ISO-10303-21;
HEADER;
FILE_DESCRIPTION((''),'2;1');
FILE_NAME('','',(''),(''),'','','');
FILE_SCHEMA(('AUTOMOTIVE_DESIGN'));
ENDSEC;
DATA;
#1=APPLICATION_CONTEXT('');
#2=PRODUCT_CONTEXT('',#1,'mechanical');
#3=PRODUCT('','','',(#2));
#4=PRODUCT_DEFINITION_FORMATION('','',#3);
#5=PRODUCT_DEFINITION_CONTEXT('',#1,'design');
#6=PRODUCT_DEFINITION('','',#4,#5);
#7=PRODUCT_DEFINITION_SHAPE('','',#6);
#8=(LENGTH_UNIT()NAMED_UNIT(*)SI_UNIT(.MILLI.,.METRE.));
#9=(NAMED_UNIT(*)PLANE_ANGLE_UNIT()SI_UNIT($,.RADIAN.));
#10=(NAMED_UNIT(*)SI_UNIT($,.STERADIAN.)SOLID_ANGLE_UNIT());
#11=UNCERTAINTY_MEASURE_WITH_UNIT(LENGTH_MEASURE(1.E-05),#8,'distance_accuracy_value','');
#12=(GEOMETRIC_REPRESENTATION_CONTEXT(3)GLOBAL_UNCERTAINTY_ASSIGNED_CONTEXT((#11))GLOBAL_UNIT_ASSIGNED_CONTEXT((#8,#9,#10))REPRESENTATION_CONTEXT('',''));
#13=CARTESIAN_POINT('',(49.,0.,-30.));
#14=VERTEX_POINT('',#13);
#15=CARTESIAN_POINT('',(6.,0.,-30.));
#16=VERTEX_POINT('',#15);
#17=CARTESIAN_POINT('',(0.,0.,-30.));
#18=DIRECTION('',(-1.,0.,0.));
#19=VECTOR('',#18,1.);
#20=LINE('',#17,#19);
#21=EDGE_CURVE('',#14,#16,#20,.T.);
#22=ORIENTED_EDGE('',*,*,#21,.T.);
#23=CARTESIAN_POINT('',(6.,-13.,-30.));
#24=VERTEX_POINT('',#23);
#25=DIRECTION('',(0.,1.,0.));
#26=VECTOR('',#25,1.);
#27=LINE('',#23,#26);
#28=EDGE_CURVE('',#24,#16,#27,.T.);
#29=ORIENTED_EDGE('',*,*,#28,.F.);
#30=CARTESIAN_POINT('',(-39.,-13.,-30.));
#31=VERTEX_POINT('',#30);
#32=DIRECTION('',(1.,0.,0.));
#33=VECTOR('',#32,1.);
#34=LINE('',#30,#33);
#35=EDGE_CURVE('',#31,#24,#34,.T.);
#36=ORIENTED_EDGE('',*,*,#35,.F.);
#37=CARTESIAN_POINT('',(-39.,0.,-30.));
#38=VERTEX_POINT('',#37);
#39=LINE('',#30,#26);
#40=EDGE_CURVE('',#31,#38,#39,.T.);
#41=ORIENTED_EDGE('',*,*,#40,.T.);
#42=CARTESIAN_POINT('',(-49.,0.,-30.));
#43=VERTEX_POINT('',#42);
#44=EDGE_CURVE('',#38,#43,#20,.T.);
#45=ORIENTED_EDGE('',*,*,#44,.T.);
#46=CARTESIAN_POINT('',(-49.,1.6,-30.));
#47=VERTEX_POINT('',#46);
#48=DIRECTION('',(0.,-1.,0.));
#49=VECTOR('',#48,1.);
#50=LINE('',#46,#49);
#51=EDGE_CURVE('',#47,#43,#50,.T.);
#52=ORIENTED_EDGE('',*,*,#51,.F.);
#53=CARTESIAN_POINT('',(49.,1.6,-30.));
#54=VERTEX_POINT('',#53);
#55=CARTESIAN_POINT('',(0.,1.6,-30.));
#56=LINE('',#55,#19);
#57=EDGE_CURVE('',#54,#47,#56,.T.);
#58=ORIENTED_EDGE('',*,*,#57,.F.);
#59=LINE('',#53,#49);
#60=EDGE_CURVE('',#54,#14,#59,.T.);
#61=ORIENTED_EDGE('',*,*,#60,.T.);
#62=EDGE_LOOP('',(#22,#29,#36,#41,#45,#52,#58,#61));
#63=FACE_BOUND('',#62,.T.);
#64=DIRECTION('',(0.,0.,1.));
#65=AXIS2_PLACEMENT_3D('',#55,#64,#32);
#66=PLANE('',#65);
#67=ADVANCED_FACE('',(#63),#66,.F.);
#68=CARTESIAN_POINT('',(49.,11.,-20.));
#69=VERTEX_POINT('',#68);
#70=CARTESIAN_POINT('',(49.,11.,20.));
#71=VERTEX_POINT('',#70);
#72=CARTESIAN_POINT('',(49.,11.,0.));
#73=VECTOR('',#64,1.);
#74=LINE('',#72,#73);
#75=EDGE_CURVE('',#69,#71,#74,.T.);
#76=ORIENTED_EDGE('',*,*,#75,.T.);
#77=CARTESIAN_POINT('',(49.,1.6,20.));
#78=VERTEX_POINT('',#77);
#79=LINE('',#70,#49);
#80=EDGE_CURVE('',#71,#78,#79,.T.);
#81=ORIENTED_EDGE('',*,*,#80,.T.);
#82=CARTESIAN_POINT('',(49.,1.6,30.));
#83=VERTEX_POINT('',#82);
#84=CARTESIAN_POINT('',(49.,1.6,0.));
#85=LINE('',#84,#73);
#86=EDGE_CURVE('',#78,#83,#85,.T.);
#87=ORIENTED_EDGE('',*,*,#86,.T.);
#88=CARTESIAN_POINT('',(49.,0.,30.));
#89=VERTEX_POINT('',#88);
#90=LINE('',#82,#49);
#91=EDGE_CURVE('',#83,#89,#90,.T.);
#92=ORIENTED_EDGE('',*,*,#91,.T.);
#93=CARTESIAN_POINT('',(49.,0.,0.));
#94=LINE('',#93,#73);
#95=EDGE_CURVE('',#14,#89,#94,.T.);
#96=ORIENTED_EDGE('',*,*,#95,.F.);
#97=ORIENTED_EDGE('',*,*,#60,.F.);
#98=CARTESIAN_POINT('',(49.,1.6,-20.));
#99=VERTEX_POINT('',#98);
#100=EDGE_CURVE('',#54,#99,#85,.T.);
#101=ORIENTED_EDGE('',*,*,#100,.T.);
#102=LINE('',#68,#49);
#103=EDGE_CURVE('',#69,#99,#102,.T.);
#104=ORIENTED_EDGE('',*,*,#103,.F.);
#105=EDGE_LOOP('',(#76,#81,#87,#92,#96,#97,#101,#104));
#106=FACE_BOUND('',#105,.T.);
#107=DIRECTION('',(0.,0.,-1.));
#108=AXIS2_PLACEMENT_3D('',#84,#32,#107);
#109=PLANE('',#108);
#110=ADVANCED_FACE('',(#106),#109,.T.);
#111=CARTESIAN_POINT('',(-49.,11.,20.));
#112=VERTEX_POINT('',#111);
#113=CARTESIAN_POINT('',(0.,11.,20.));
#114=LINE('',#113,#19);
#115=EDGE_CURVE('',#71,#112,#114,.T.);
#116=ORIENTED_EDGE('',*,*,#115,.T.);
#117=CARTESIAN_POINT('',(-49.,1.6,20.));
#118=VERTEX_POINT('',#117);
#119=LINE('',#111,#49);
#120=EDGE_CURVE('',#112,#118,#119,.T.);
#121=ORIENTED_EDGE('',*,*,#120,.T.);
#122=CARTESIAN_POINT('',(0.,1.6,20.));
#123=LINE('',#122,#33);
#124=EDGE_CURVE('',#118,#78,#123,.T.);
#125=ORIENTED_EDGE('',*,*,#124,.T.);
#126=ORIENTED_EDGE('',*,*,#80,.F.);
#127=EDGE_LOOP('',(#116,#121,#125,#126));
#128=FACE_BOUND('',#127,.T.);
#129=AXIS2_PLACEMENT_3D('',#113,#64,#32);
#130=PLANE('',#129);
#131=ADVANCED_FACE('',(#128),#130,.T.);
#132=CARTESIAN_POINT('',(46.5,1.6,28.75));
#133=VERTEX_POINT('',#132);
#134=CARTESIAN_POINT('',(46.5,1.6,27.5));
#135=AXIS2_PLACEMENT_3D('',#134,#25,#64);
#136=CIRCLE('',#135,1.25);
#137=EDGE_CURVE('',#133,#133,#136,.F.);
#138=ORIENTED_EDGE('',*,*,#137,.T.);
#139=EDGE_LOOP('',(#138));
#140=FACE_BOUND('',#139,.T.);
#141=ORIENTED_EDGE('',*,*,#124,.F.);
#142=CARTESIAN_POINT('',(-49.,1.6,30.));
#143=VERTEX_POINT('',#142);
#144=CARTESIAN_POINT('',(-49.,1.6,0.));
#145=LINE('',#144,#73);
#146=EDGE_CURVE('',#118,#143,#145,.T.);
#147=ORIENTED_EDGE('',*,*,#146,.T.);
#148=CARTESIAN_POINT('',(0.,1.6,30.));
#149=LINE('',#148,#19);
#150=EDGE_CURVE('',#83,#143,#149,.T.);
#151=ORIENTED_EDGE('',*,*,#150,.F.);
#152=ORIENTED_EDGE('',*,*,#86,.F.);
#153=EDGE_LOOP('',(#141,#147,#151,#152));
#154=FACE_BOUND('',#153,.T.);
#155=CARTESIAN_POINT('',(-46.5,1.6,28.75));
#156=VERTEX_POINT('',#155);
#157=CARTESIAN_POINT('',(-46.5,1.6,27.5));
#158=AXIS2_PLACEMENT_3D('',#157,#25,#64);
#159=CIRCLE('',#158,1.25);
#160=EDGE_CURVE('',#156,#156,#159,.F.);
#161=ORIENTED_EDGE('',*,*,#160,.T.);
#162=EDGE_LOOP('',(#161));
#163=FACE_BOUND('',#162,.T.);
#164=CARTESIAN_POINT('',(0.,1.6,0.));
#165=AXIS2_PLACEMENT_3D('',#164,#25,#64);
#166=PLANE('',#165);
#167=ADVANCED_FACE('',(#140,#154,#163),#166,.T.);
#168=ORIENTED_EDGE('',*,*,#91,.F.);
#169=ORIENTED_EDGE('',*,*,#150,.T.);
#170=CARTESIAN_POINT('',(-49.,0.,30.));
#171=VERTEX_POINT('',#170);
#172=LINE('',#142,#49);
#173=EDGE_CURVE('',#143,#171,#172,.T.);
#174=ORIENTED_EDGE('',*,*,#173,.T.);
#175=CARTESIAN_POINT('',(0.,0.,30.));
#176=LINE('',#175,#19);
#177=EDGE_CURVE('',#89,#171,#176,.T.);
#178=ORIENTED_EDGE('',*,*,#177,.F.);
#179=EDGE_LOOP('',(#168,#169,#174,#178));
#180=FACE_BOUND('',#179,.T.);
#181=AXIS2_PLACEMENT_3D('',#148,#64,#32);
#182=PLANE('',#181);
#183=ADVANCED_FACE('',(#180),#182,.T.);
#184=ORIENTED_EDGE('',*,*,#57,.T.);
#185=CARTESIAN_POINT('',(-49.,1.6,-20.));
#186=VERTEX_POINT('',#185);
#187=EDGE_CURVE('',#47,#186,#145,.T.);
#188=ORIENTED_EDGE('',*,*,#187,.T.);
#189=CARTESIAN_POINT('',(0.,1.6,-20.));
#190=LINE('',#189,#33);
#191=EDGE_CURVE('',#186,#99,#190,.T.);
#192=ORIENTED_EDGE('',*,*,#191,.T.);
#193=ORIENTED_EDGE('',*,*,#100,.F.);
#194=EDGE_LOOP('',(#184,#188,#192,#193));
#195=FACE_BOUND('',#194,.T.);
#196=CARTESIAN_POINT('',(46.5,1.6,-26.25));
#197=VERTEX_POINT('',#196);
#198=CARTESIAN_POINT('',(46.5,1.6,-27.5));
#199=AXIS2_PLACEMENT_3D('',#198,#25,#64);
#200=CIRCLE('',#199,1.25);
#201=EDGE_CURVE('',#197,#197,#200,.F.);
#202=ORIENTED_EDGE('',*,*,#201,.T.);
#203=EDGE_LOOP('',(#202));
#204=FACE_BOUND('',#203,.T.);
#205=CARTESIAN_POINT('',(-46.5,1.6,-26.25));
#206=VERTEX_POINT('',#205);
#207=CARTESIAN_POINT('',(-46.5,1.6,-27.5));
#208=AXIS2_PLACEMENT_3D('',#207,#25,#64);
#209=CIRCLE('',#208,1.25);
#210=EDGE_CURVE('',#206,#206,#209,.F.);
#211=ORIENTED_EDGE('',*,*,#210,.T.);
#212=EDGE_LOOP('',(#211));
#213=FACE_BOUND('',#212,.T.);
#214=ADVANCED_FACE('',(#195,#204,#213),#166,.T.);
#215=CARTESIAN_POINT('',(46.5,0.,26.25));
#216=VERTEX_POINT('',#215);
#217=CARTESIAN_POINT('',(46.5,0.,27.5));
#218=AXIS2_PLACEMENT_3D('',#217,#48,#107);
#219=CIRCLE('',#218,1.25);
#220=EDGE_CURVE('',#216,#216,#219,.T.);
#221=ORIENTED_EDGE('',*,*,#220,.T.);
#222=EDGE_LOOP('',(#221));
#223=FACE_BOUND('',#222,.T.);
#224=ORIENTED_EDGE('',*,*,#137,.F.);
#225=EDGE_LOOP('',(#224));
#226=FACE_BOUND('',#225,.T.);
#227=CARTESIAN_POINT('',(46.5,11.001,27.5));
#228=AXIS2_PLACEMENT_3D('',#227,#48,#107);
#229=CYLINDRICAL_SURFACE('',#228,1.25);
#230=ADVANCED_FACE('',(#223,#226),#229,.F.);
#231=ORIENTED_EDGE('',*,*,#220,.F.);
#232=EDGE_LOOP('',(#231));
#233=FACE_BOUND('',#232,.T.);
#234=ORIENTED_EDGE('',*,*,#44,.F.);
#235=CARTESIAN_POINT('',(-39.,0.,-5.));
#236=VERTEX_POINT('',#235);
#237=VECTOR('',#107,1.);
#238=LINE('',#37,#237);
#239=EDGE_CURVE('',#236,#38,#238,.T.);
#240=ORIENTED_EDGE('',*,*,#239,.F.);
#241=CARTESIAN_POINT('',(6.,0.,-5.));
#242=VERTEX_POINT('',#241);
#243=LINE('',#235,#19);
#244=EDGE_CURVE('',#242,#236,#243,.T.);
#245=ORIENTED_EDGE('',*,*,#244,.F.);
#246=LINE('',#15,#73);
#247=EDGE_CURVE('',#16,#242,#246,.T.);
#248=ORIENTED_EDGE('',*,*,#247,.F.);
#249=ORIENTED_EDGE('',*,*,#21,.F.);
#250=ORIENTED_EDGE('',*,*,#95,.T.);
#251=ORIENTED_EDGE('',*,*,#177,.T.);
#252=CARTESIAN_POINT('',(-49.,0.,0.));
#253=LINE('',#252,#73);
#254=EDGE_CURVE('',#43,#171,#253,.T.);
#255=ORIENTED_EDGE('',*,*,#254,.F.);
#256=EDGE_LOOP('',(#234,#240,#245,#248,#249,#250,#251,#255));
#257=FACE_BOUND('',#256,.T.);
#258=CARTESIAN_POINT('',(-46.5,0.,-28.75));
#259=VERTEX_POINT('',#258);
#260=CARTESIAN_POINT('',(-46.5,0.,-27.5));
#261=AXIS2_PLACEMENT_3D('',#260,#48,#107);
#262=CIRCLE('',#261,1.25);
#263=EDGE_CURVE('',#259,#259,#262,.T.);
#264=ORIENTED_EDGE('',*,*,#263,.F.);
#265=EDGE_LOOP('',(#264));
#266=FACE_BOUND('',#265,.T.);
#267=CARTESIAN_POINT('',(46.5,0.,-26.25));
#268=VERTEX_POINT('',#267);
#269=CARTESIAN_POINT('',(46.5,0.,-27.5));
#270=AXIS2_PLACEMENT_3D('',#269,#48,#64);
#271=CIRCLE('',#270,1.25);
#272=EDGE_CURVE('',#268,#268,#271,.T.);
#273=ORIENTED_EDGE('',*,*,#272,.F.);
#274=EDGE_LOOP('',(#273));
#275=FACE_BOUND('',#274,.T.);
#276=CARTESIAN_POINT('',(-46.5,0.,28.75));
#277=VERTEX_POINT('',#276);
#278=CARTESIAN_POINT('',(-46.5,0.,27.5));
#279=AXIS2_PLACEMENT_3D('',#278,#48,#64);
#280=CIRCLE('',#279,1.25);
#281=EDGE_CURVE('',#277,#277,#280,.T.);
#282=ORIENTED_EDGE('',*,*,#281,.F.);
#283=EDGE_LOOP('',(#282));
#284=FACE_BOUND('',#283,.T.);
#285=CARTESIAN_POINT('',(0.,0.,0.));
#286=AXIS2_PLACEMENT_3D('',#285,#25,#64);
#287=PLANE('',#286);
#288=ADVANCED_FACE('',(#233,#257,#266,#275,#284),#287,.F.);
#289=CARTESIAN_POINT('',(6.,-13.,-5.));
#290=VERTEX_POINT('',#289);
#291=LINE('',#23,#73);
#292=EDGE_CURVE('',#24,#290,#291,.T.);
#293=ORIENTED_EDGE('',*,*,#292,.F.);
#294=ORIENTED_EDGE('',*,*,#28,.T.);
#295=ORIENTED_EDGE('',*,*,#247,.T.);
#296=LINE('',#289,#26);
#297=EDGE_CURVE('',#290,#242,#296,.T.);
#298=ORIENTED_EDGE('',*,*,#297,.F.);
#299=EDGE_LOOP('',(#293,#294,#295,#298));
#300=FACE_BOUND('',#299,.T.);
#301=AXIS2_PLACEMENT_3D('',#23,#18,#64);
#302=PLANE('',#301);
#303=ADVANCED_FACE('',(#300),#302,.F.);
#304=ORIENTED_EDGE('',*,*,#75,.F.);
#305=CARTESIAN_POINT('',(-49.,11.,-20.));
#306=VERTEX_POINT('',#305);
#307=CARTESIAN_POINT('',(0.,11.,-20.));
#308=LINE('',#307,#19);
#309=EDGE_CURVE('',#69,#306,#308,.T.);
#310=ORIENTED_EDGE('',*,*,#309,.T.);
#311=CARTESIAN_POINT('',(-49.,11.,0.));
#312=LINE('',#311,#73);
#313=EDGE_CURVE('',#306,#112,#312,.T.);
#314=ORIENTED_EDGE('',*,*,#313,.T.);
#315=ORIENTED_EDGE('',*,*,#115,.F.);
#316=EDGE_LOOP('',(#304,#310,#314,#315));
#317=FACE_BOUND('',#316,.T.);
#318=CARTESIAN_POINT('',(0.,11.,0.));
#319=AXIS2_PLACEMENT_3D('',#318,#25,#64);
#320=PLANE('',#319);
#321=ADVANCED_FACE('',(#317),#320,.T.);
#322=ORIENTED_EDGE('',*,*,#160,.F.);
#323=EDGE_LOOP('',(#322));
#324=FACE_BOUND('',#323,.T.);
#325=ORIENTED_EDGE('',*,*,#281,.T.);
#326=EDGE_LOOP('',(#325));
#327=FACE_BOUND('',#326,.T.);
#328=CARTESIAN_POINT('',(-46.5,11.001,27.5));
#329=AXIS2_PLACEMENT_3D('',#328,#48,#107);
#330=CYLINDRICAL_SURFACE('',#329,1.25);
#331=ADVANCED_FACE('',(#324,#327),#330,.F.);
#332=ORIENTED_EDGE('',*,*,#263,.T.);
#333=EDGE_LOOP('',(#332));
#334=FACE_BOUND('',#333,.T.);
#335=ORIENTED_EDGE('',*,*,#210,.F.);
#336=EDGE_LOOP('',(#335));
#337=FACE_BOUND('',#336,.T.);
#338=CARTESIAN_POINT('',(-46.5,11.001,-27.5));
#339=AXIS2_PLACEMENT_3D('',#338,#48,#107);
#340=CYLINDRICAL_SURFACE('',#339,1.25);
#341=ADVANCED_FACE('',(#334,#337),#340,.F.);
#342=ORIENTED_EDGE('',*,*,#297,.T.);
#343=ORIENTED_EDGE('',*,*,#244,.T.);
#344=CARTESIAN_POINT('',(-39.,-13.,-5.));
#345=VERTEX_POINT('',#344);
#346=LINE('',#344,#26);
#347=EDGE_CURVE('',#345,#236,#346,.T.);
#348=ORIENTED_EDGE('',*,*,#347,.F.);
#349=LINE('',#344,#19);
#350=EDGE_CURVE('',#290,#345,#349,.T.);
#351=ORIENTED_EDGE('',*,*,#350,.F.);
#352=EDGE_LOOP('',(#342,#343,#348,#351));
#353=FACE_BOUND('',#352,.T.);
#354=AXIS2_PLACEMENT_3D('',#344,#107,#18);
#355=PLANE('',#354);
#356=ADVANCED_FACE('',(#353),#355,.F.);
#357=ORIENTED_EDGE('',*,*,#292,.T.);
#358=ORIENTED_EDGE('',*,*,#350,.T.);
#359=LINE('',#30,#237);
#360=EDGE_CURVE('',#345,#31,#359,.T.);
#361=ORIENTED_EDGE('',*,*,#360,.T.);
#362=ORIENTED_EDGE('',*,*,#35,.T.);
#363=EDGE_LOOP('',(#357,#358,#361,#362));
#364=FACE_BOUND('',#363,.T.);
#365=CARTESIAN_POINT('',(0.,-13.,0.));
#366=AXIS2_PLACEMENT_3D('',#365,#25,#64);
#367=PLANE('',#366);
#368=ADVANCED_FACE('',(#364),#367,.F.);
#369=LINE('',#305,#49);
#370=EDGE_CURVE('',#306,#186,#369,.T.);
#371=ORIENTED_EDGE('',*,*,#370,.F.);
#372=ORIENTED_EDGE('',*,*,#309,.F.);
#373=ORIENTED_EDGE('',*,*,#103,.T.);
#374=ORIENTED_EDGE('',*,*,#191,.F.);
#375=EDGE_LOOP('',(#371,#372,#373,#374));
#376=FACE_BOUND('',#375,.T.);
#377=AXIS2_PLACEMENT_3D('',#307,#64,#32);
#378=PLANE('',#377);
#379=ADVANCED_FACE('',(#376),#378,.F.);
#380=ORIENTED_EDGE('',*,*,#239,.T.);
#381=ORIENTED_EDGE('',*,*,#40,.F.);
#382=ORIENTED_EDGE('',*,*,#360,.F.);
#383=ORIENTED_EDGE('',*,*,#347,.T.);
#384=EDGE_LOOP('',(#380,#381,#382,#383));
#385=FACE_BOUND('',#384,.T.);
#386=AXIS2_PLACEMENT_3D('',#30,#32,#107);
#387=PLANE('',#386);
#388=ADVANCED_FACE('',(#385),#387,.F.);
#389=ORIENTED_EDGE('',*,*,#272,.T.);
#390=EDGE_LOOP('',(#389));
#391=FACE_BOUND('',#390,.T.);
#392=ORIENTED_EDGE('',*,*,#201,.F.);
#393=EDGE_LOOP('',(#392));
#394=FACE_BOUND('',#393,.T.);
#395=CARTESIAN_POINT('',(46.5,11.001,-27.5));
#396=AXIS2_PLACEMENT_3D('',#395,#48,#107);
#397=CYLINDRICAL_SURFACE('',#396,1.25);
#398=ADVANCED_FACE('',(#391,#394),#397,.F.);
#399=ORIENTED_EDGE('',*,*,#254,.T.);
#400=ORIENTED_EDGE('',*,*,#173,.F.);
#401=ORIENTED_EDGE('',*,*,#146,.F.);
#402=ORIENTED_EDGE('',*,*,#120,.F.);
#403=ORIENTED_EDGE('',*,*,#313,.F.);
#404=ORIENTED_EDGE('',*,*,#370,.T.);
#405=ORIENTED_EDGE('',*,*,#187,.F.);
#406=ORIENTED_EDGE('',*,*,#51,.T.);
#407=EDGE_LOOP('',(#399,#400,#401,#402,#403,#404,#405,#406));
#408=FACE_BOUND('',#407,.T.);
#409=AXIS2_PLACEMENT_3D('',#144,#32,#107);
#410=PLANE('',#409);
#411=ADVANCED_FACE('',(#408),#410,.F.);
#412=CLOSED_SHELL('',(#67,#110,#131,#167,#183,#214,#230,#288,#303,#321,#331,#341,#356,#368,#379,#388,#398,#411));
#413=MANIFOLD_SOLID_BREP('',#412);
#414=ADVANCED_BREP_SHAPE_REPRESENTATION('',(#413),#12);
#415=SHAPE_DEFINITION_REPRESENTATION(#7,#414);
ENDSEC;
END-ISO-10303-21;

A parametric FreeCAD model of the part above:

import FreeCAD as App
import Part
import Sketcher

V = App.Vector
Q = App.Units.Quantity


def add_polygon(sketch, points):
    """Adds a closed chain of lines whose ends are joined by coincident constraints."""
    first, n = sketch.GeometryCount, len(points)
    for a, b in zip(points, points[1:] + points[:1]):
        sketch.addGeometry(Part.LineSegment(App.Vector(*a, 0), App.Vector(*b, 0)), False)
    for i in range(n):
        sketch.addConstraint(Sketcher.Constraint("Coincident", first + i, 2, first + (i + 1) % n, 1))

doc = App.newDocument("Part")
body = doc.addObject("PartDesign::Body", "Body")

sketch1 = doc.addObject("Sketcher::SketchObject", "Sketch")
body.addObject(sketch1)
sketch1.AttachmentSupport = (doc.XZ_Plane, [""])
sketch1.MapMode = "FlatFace"
add_polygon(sketch1, [(-49, -30), (-49, 30), (49, 30), (49, -30)])
sketch1.addConstraint(Sketcher.Constraint("Vertical", 0))
sketch1.addConstraint(Sketcher.Constraint("Horizontal", 1))
sketch1.addConstraint(Sketcher.Constraint("Vertical", 2))
sketch1.addConstraint(Sketcher.Constraint("Horizontal", 3))
sketch1.addConstraint(Sketcher.Constraint("Symmetric", 0, 2, 2, 2, -1, 1))
sketch1.addConstraint(Sketcher.Constraint("DistanceX", 1, 1, 1, 2, Q("98 mm")))
sketch1.addConstraint(Sketcher.Constraint("DistanceY", 0, 1, 0, 2, Q("60 mm")))
pad1 = doc.addObject("PartDesign::Pad", "Pad")
body.addObject(pad1)
pad1.Profile = sketch1
pad1.Length = 1.6
pad1.Reversed = True

sketch2 = doc.addObject("Sketcher::SketchObject", "Sketch001")
body.addObject(sketch2)
sketch2.AttachmentSupport = (doc.XZ_Plane, [""])
sketch2.MapMode = "FlatFace"
add_polygon(sketch2, [(-49, -20), (-49, 20), (49, 20), (49, -20)])
sketch2.addConstraint(Sketcher.Constraint("Vertical", 0))
sketch2.addConstraint(Sketcher.Constraint("Horizontal", 1))
sketch2.addConstraint(Sketcher.Constraint("Vertical", 2))
sketch2.addConstraint(Sketcher.Constraint("Horizontal", 3))
sketch2.addConstraint(Sketcher.Constraint("Symmetric", 0, 2, 2, 2, -1, 1))
sketch2.addConstraint(Sketcher.Constraint("DistanceX", 1, 1, 1, 2, Q("98 mm")))
sketch2.addConstraint(Sketcher.Constraint("DistanceY", 0, 1, 0, 2, Q("40 mm")))
pad2 = doc.addObject("PartDesign::Pad", "Pad001")
body.addObject(pad2)
pad2.Profile = sketch2
pad2.Length = 11
pad2.Reversed = True

sketch3 = doc.addObject("Sketcher::SketchObject", "Sketch002")
body.addObject(sketch3)
sketch3.AttachmentSupport = (doc.XZ_Plane, [""])
sketch3.MapMode = "FlatFace"
add_polygon(sketch3, [(-39, -5), (-39, -30), (6, -30), (6, -5)])
sketch3.addConstraint(Sketcher.Constraint("Vertical", 0))
sketch3.addConstraint(Sketcher.Constraint("Horizontal", 1))
sketch3.addConstraint(Sketcher.Constraint("Vertical", 2))
sketch3.addConstraint(Sketcher.Constraint("Horizontal", 3))
sketch3.addConstraint(Sketcher.Constraint("DistanceX", 1, 1, 1, 2, Q("45 mm")))
sketch3.addConstraint(Sketcher.Constraint("DistanceY", 0, 2, 0, 1, Q("25 mm")))
sketch3.addConstraint(Sketcher.Constraint("DistanceX", 0, 2, -1, 1, Q("39 mm")))
sketch3.addConstraint(Sketcher.Constraint("DistanceY", 0, 2, -1, 1, Q("30 mm")))
pad3 = doc.addObject("PartDesign::Pad", "Pad002")
body.addObject(pad3)
pad3.Profile = sketch3
pad3.Length = 13

sketch4 = doc.addObject("Sketcher::SketchObject", "Sketch003")
body.addObject(sketch4)
sketch4.AttachmentSupport = (doc.XZ_Plane, [""])
sketch4.MapMode = "FlatFace"
sketch4.addGeometry(Part.Circle(V(46.5, 27.5, 0), V(0, 0, 1), 1.25), False)
sketch4.addConstraint(Sketcher.Constraint("Diameter", 0, Q("2.5 mm")))
sketch4.addConstraint(Sketcher.Constraint("DistanceX", -1, 1, 0, 3, Q("46.5 mm")))
sketch4.addConstraint(Sketcher.Constraint("DistanceY", -1, 1, 0, 3, Q("27.5 mm")))
pocket1 = doc.addObject("PartDesign::Pocket", "Pocket")
body.addObject(pocket1)
pocket1.Profile = sketch4
pocket1.Type = "UpToFirst"

sketch5 = doc.addObject("Sketcher::SketchObject", "Sketch004")
body.addObject(sketch5)
sketch5.AttachmentSupport = (doc.XZ_Plane, [""])
sketch5.MapMode = "FlatFace"
sketch5.addGeometry(Part.Circle(V(-46.5, 27.5, 0), V(0, 0, 1), 1.25), False)
sketch5.addConstraint(Sketcher.Constraint("Diameter", 0, Q("2.5 mm")))
sketch5.addConstraint(Sketcher.Constraint("DistanceX", 0, 3, -1, 1, Q("46.5 mm")))
sketch5.addConstraint(Sketcher.Constraint("DistanceY", -1, 1, 0, 3, Q("27.5 mm")))
pocket2 = doc.addObject("PartDesign::Pocket", "Pocket001")
body.addObject(pocket2)
pocket2.Profile = sketch5
pocket2.Type = "UpToFirst"

sketch6 = doc.addObject("Sketcher::SketchObject", "Sketch005")
body.addObject(sketch6)
sketch6.AttachmentSupport = (doc.XZ_Plane, [""])
sketch6.MapMode = "FlatFace"
sketch6.addGeometry(Part.Circle(V(-46.5, -27.5, 0), V(0, 0, 1), 1.25), False)
sketch6.addConstraint(Sketcher.Constraint("Diameter", 0, Q("2.5 mm")))
sketch6.addConstraint(Sketcher.Constraint("DistanceX", 0, 3, -1, 1, Q("46.5 mm")))
sketch6.addConstraint(Sketcher.Constraint("DistanceY", 0, 3, -1, 1, Q("27.5 mm")))
pocket3 = doc.addObject("PartDesign::Pocket", "Pocket002")
body.addObject(pocket3)
pocket3.Profile = sketch6
pocket3.Type = "UpToFirst"

sketch7 = doc.addObject("Sketcher::SketchObject", "Sketch006")
body.addObject(sketch7)
sketch7.AttachmentSupport = (doc.XZ_Plane, [""])
sketch7.MapMode = "FlatFace"
sketch7.addGeometry(Part.Circle(V(46.5, -27.5, 0), V(0, 0, 1), 1.25), False)
sketch7.addConstraint(Sketcher.Constraint("Diameter", 0, Q("2.5 mm")))
sketch7.addConstraint(Sketcher.Constraint("DistanceX", -1, 1, 0, 3, Q("46.5 mm")))
sketch7.addConstraint(Sketcher.Constraint("DistanceY", 0, 3, -1, 1, Q("27.5 mm")))
pocket4 = doc.addObject("PartDesign::Pocket", "Pocket003")
body.addObject(pocket4)
pocket4.Profile = sketch7
pocket4.Type = "UpToFirst"

doc.recompute()
